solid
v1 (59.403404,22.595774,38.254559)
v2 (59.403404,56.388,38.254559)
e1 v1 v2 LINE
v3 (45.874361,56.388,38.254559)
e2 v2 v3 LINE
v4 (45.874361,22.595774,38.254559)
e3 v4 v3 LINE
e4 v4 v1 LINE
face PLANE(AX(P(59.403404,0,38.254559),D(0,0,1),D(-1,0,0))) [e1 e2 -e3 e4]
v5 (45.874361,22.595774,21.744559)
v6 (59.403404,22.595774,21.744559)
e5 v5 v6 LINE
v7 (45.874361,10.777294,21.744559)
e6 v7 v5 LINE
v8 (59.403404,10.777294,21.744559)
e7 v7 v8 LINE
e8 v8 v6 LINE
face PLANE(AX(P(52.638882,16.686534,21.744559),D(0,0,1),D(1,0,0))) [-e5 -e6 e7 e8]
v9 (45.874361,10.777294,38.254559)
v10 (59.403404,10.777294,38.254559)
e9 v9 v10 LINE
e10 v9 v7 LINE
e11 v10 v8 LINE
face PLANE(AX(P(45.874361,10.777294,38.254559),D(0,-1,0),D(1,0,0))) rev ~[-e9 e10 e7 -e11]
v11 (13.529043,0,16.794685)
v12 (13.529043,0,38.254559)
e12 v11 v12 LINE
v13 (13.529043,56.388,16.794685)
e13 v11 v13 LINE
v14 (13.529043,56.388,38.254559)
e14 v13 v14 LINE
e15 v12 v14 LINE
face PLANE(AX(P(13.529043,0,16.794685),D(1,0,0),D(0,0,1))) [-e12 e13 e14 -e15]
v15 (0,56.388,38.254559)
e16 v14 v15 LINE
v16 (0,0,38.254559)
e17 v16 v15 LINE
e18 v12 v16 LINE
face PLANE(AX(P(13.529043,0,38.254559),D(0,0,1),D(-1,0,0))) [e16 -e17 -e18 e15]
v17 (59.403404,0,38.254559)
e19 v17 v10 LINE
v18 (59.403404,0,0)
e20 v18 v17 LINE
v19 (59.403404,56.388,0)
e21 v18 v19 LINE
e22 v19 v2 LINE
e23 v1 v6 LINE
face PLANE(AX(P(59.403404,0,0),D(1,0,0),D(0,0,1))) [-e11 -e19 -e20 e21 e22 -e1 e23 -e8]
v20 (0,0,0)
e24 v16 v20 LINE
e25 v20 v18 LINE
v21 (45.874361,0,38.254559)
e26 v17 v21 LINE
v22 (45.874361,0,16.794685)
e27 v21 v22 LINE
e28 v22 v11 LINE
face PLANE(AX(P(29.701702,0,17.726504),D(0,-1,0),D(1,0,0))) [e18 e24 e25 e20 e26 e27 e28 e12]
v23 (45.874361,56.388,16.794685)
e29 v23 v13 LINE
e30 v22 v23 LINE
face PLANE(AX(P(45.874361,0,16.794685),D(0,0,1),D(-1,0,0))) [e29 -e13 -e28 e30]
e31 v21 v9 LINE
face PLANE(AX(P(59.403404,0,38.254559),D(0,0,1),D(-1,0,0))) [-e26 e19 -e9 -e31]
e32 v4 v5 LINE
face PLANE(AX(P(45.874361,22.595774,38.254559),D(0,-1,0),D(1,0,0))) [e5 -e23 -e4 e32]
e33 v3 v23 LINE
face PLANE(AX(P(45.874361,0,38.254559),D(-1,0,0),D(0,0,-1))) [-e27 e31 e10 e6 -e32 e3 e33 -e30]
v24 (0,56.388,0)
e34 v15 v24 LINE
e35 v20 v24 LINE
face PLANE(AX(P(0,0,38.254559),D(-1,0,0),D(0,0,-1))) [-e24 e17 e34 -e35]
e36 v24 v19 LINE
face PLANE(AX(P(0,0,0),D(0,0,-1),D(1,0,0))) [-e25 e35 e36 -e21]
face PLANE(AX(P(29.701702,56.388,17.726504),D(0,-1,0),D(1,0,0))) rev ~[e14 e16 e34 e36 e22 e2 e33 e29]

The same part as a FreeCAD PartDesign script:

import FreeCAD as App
import Part
import Sketcher
from FreeCAD import Vector
Q = App.Units.Quantity

doc = App.newDocument("Part")
body = doc.addObject("PartDesign::Body", "Body")

# Sketch on XZ plane
sketch1 = body.newObject("Sketcher::SketchObject", "Sketch")
sketch1.AttachmentSupport = (doc.getObject("XZ_Plane"), [""])
sketch1.MapMode = "FlatFace"
sketch1.addGeometry([
    Part.LineSegment(Vector(0, 38, 0), Vector(0, 0, 0)),  # 0
    Part.LineSegment(Vector(0, 0, 0), Vector(59, 0, 0)),  # 1
    Part.LineSegment(Vector(59, 0, 0), Vector(59, 38, 0)),  # 2
    Part.LineSegment(Vector(59, 38, 0), Vector(46, 38, 0)),  # 3
    Part.LineSegment(Vector(46, 38, 0), Vector(46, 17, 0)),  # 4
    Part.LineSegment(Vector(46, 17, 0), Vector(14, 17, 0)),  # 5
    Part.LineSegment(Vector(14, 17, 0), Vector(14, 38, 0)),  # 6
    Part.LineSegment(Vector(14, 38, 0), Vector(0, 38, 0)),  # 7
], False)
sketch1.addConstraint([
    Sketcher.Constraint("Coincident", 0, 2, 1, 1),
    Sketcher.Constraint("Coincident", 1, 2, 2, 1),
    Sketcher.Constraint("Coincident", 2, 2, 3, 1),
    Sketcher.Constraint("Coincident", 3, 2, 4, 1),
    Sketcher.Constraint("Coincident", 4, 2, 5, 1),
    Sketcher.Constraint("Coincident", 5, 2, 6, 1),
    Sketcher.Constraint("Coincident", 6, 2, 7, 1),
    Sketcher.Constraint("Coincident", 7, 2, 0, 1),
    Sketcher.Constraint("Vertical", 0),
    Sketcher.Constraint("Horizontal", 1),
    Sketcher.Constraint("Vertical", 2),
    Sketcher.Constraint("Horizontal", 3),
    Sketcher.Constraint("Vertical", 4),
    Sketcher.Constraint("Horizontal", 5),
    Sketcher.Constraint("Vertical", 6),
    Sketcher.Constraint("Horizontal", 7),
    Sketcher.Constraint("Coincident", 0, 2, -1, 1),
    Sketcher.Constraint("Horizontal", 3, 2, 6, 2),
    Sketcher.Constraint("Equal", 3, 7),
    Sketcher.Constraint("DistanceX", 5, 2, 5, 1, Q("32.345318 mm")),
    Sketcher.Constraint("DistanceY", 0, 2, 0, 1, Q("38.254559 mm")),
    Sketcher.Constraint("DistanceX", 1, 1, 1, 2, Q("59.403404 mm")),
    Sketcher.Constraint("DistanceY", 4, 2, 4, 1, Q("21.459874 mm")),
])
pad1 = body.newObject("PartDesign::Pad", "Pad")
pad1.Profile = sketch1
pad1.Length = Q("2.22 in")
pad1.Reversed = True

# Sketch on XY plane
sketch2 = body.newObject("Sketcher::SketchObject", "Sketch001")
sketch2.AttachmentSupport = (doc.getObject("XY_Plane"), [""])
sketch2.MapMode = "FlatFace"
sketch2.AttachmentOffset = App.Placement(Vector(0, 0, 38.254559), App.Rotation())
sketch2.addGeometry([
    Part.LineSegment(Vector(46, 23, 0), Vector(46, 11, 0)),
    Part.LineSegment(Vector(46, 11, 0), Vector(59, 11, 0)),
    Part.LineSegment(Vector(59, 11, 0), Vector(59, 23, 0)),
    Part.LineSegment(Vector(59, 23, 0), Vector(46, 23, 0)),
], False)
sketch2.addConstraint([
    Sketcher.Constraint("Coincident", 0, 2, 1, 1),
    Sketcher.Constraint("Coincident", 1, 2, 2, 1),
    Sketcher.Constraint("Coincident", 2, 2, 3, 1),
    Sketcher.Constraint("Coincident", 3, 2, 0, 1),
    Sketcher.Constraint("Vertical", 0),
    Sketcher.Constraint("Horizontal", 1),
    Sketcher.Constraint("Vertical", 2),
    Sketcher.Constraint("Horizontal", 3),
    Sketcher.Constraint("DistanceY", 0, 2, 0, 1, Q("11.818481 mm")),
    Sketcher.Constraint("DistanceX", 1, 1, 1, 2, Q("13.529043 mm")),
    Sketcher.Constraint("DistanceX", -1, 1, 0, 2, Q("45.874361 mm")),
    Sketcher.Constraint("DistanceY", -1, 1, 0, 2, Q("10.777294 mm")),
])
pocket1 = body.newObject("PartDesign::Pocket", "Pocket")
pocket1.Profile = sketch2
pocket1.Length = Q("0.65 in")

doc.recompute()
